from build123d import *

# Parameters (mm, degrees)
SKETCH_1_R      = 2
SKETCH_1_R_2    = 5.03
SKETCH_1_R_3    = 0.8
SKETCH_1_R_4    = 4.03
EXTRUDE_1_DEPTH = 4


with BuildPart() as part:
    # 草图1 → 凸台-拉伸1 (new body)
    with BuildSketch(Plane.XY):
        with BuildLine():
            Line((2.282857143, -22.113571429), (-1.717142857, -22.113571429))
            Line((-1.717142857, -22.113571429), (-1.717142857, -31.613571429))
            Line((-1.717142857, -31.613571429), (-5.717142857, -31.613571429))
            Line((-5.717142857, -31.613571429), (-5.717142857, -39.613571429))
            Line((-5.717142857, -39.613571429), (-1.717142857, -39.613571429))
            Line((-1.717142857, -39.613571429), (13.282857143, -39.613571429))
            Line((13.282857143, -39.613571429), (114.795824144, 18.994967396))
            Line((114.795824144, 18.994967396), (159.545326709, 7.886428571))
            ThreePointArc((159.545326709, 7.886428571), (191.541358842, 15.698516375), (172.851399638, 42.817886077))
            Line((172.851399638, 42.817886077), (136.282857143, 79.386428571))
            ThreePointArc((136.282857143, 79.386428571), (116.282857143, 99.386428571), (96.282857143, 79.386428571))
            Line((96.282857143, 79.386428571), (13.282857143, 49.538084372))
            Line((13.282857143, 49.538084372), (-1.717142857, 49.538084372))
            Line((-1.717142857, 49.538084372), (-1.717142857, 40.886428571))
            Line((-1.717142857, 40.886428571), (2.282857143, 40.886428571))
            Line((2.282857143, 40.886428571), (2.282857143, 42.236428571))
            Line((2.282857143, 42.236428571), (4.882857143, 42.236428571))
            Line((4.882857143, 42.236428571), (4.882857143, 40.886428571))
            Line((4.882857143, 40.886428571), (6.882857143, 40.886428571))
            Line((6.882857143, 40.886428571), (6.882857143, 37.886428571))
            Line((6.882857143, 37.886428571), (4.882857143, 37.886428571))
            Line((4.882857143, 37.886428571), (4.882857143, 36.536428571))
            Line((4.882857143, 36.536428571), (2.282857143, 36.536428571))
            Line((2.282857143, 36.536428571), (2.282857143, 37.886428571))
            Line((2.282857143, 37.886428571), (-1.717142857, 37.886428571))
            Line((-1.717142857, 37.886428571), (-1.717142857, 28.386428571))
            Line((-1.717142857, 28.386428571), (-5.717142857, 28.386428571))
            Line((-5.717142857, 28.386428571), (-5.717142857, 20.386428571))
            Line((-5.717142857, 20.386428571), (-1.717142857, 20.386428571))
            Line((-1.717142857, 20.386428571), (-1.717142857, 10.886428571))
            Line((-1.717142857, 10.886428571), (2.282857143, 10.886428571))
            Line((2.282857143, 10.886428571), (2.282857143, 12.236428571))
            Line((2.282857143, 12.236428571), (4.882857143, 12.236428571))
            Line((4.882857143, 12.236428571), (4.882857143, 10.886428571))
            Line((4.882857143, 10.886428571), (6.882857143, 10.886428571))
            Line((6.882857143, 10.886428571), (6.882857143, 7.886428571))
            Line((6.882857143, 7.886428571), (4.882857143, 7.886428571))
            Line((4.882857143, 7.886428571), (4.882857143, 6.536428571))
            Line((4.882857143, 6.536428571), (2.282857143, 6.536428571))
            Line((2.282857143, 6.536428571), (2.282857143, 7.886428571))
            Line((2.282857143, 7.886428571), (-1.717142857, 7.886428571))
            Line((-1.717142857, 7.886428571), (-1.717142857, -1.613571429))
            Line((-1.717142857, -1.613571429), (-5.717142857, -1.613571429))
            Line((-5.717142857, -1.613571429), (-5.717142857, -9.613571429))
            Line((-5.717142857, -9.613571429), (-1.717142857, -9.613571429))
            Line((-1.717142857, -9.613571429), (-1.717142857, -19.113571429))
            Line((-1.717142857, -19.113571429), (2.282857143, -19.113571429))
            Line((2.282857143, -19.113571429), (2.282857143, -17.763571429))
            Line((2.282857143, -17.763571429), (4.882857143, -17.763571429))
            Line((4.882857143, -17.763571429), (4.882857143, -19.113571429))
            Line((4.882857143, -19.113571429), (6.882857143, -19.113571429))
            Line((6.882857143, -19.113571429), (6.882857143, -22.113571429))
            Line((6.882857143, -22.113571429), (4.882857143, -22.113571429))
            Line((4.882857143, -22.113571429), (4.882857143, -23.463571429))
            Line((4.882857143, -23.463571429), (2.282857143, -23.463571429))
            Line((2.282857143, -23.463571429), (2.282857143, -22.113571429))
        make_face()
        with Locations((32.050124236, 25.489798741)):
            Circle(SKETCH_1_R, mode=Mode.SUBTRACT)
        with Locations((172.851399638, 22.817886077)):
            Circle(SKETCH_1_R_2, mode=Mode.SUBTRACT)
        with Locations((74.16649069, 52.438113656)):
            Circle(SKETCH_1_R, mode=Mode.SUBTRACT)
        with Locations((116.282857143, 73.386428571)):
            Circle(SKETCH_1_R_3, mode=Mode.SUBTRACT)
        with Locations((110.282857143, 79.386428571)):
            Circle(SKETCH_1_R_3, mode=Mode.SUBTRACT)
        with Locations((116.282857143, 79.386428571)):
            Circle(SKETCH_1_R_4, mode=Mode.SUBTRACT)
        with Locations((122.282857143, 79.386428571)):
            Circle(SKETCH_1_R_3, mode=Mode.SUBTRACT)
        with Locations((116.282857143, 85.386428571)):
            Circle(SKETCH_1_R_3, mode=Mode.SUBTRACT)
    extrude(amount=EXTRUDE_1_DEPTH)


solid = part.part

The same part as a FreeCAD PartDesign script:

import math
import FreeCAD as App
import Part
import Sketcher
Q = App.Units.Quantity

doc = App.newDocument("Part")
body = doc.addObject("PartDesign::Body", "Body")

sketch1 = body.newObject("Sketcher::SketchObject", "Sketch")
sketch1.AttachmentSupport = (doc.getObject("XY_Plane"), [""])
sketch1.MapMode = "FlatFace"
sketch1.addGeometry(Part.LineSegment(App.Vector(2.282857, -22.113571, 0), App.Vector(-1.717143, -22.113571, 0)), False)
sketch1.addGeometry(Part.LineSegment(App.Vector(-1.717143, -22.113571, 0), App.Vector(-1.717143, -31.613571, 0)), False)
sketch1.addGeometry(Part.LineSegment(App.Vector(-1.717143, -31.613571, 0), App.Vector(-5.717143, -31.613571, 0)), False)
sketch1.addGeometry(Part.LineSegment(App.Vector(-5.717143, -31.613571, 0), App.Vector(-5.717143, -39.613571, 0)), False)
sketch1.addGeometry(Part.LineSegment(App.Vector(-5.717143, -39.613571, 0), App.Vector(13.282857, -39.613571, 0)), False)
sketch1.addGeometry(Part.LineSegment(App.Vector(13.282857, -39.613571, 0), App.Vector(114.795824, 18.994967, 0)), False)
sketch1.addGeometry(Part.LineSegment(App.Vector(114.795824, 18.994967, 0), App.Vector(159.545327, 7.886429, 0)), False)
sketch1.addGeometry(Part.ArcOfCircle(Part.Circle(App.Vector(172.8514, 22.817886, 0), App.Vector(0, 0, 1), 20), math.radians(-131.705625), math.radians(90)), False)
sketch1.addGeometry(Part.LineSegment(App.Vector(172.8514, 42.817886, 0), App.Vector(136.282857, 79.386429, 0)), False)
sketch1.addGeometry(Part.ArcOfCircle(Part.Circle(App.Vector(116.282857, 79.386429, 0), App.Vector(0, 0, 1), 20), math.radians(0), math.radians(180)), False)
sketch1.addGeometry(Part.LineSegment(App.Vector(96.282857, 79.386429, 0), App.Vector(13.282857, 49.538084, 0)), False)
sketch1.addGeometry(Part.LineSegment(App.Vector(13.282857, 49.538084, 0), App.Vector(-1.717143, 49.538084, 0)), False)
sketch1.addGeometry(Part.LineSegment(App.Vector(-1.717143, 49.538084, 0), App.Vector(-1.717143, 40.886429, 0)), False)
sketch1.addGeometry(Part.LineSegment(App.Vector(-1.717143, 40.886429, 0), App.Vector(2.282857, 40.886429, 0)), False)
sketch1.addGeometry(Part.LineSegment(App.Vector(2.282857, 40.886429, 0), App.Vector(2.282857, 42.236429, 0)), False)
sketch1.addGeometry(Part.LineSegment(App.Vector(2.282857, 42.236429, 0), App.Vector(4.882857, 42.236429, 0)), False)
sketch1.addGeometry(Part.LineSegment(App.Vector(4.882857, 42.236429, 0), App.Vector(4.882857, 40.886429, 0)), False)
sketch1.addGeometry(Part.LineSegment(App.Vector(4.882857, 40.886429, 0), App.Vector(6.882857, 40.886429, 0)), False)
sketch1.addGeometry(Part.LineSegment(App.Vector(6.882857, 40.886429, 0), App.Vector(6.882857, 37.886429, 0)), False)
sketch1.addGeometry(Part.LineSegment(App.Vector(6.882857, 37.886429, 0), App.Vector(4.882857, 37.886429, 0)), False)
sketch1.addGeometry(Part.LineSegment(App.Vector(4.882857, 37.886429, 0), App.Vector(4.882857, 36.536429, 0)), False)
sketch1.addGeometry(Part.LineSegment(App.Vector(4.882857, 36.536429, 0), App.Vector(2.282857, 36.536429, 0)), False)
sketch1.addGeometry(Part.LineSegment(App.Vector(2.282857, 36.536429, 0), App.Vector(2.282857, 37.886429, 0)), False)
sketch1.addGeometry(Part.LineSegment(App.Vector(2.282857, 37.886429, 0), App.Vector(-1.717143, 37.886429, 0)), False)
sketch1.addGeometry(Part.LineSegment(App.Vector(-1.717143, 37.886429, 0), App.Vector(-1.717143, 28.386429, 0)), False)
sketch1.addGeometry(Part.LineSegment(App.Vector(-1.717143, 28.386429, 0), App.Vector(-5.717143, 28.386429, 0)), False)
sketch1.addGeometry(Part.LineSegment(App.Vector(-5.717143, 28.386429, 0), App.Vector(-5.717143, 20.386429, 0)), False)
sketch1.addGeometry(Part.LineSegment(App.Vector(-5.717143, 20.386429, 0), App.Vector(-1.717143, 20.386429, 0)), False)
sketch1.addGeometry(Part.LineSegment(App.Vector(-1.717143, 20.386429, 0), App.Vector(-1.717143, 10.886429, 0)), False)
sketch1.addGeometry(Part.LineSegment(App.Vector(-1.717143, 10.886429, 0), App.Vector(2.282857, 10.886429, 0)), False)
sketch1.addGeometry(Part.LineSegment(App.Vector(2.282857, 10.886429, 0), App.Vector(2.282857, 12.236429, 0)), False)
sketch1.addGeometry(Part.LineSegment(App.Vector(2.282857, 12.236429, 0), App.Vector(4.882857, 12.236429, 0)), False)
sketch1.addGeometry(Part.LineSegment(App.Vector(4.882857, 12.236429, 0), App.Vector(4.882857, 10.886429, 0)), False)
sketch1.addGeometry(Part.LineSegment(App.Vector(4.882857, 10.886429, 0), App.Vector(6.882857, 10.886429, 0)), False)
sketch1.addGeometry(Part.LineSegment(App.Vector(6.882857, 10.886429, 0), App.Vector(6.882857, 7.886429, 0)), False)
sketch1.addGeometry(Part.LineSegment(App.Vector(6.882857, 7.886429, 0), App.Vector(4.882857, 7.886429, 0)), False)
sketch1.addGeometry(Part.LineSegment(App.Vector(4.882857, 7.886429, 0), App.Vector(4.882857, 6.536429, 0)), False)
sketch1.addGeometry(Part.LineSegment(App.Vector(4.882857, 6.536429, 0), App.Vector(2.282857, 6.536429, 0)), False)
sketch1.addGeometry(Part.LineSegment(App.Vector(2.282857, 6.536429, 0), App.Vector(2.282857, 7.886429, 0)), False)
sketch1.addGeometry(Part.LineSegment(App.Vector(2.282857, 7.886429, 0), App.Vector(-1.717143, 7.886429, 0)), False)
sketch1.addGeometry(Part.LineSegment(App.Vector(-1.717143, 7.886429, 0), App.Vector(-1.717143, -1.613571, 0)), False)
sketch1.addGeometry(Part.LineSegment(App.Vector(-1.717143, -1.613571, 0), App.Vector(-5.717143, -1.613571, 0)), False)
sketch1.addGeometry(Part.LineSegment(App.Vector(-5.717143, -1.613571, 0), App.Vector(-5.717143, -9.613571, 0)), False)
sketch1.addGeometry(Part.LineSegment(App.Vector(-5.717143, -9.613571, 0), App.Vector(-1.717143, -9.613571, 0)), False)
sketch1.addGeometry(Part.LineSegment(App.Vector(-1.717143, -9.613571, 0), App.Vector(-1.717143, -19.113571, 0)), False)
sketch1.addGeometry(Part.LineSegment(App.Vector(-1.717143, -19.113571, 0), App.Vector(2.282857, -19.113571, 0)), False)
sketch1.addGeometry(Part.LineSegment(App.Vector(2.282857, -19.113571, 0), App.Vector(2.282857, -17.763571, 0)), False)
sketch1.addGeometry(Part.LineSegment(App.Vector(2.282857, -17.763571, 0), App.Vector(4.882857, -17.763571, 0)), False)
sketch1.addGeometry(Part.LineSegment(App.Vector(4.882857, -17.763571, 0), App.Vector(4.882857, -19.113571, 0)), False)
sketch1.addGeometry(Part.LineSegment(App.Vector(4.882857, -19.113571, 0), App.Vector(6.882857, -19.113571, 0)), False)
sketch1.addGeometry(Part.LineSegment(App.Vector(6.882857, -19.113571, 0), App.Vector(6.882857, -22.113571, 0)), False)
sketch1.addGeometry(Part.LineSegment(App.Vector(6.882857, -22.113571, 0), App.Vector(4.882857, -22.113571, 0)), False)
sketch1.addGeometry(Part.LineSegment(App.Vector(4.882857, -22.113571, 0), App.Vector(4.882857, -23.463571, 0)), False)
sketch1.addGeometry(Part.LineSegment(App.Vector(4.882857, -23.463571, 0), App.Vector(2.282857, -23.463571, 0)), False)
sketch1.addGeometry(Part.LineSegment(App.Vector(2.282857, -23.463571, 0), App.Vector(2.282857, -22.113571, 0)), False)
sketch1.addGeometry(Part.Circle(App.Vector(32.050124, 25.489799, 0), App.Vector(0, 0, 1), 2), False)
sketch1.addGeometry(Part.Circle(App.Vector(172.8514, 22.817886, 0), App.Vector(0, 0, 1), 5.03), False)
sketch1.addGeometry(Part.Circle(App.Vector(74.166491, 52.438114, 0), App.Vector(0, 0, 1), 2), False)
sketch1.addGeometry(Part.Circle(App.Vector(116.282857, 73.386429, 0), App.Vector(0, 0, 1), 0.8), False)
sketch1.addGeometry(Part.Circle(App.Vector(110.282857, 79.386429, 0), App.Vector(0, 0, 1), 0.8), False)
sketch1.addGeometry(Part.Circle(App.Vector(116.282857, 79.386429, 0), App.Vector(0, 0, 1), 4.03), False)
sketch1.addGeometry(Part.Circle(App.Vector(122.282857, 79.386429, 0), App.Vector(0, 0, 1), 0.8), False)
sketch1.addGeometry(Part.Circle(App.Vector(116.282857, 85.386429, 0), App.Vector(0, 0, 1), 0.8), False)
sketch1.addConstraint(Sketcher.Constraint("Coincident", 0, 2, 1, 1))
sketch1.addConstraint(Sketcher.Constraint("Coincident", 1, 2, 2, 1))
sketch1.addConstraint(Sketcher.Constraint("Coincident", 2, 2, 3, 1))
sketch1.addConstraint(Sketcher.Constraint("Coincident", 3, 2, 4, 1))
sketch1.addConstraint(Sketcher.Constraint("Coincident", 4, 2, 5, 1))
sketch1.addConstraint(Sketcher.Constraint("Coincident", 5, 2, 6, 1))
sketch1.addConstraint(Sketcher.Constraint("Coincident", 6, 2, 7, 1))
sketch1.addConstraint(Sketcher.Constraint("Coincident", 7, 2, 8, 1))
sketch1.addConstraint(Sketcher.Constraint("Coincident", 8, 2, 9, 1))
sketch1.addConstraint(Sketcher.Constraint("Coincident", 9, 2, 10, 1))
sketch1.addConstraint(Sketcher.Constraint("Coincident", 10, 2, 11, 1))
sketch1.addConstraint(Sketcher.Constraint("Coincident", 11, 2, 12, 1))
sketch1.addConstraint(Sketcher.Constraint("Coincident", 12, 2, 13, 1))
sketch1.addConstraint(Sketcher.Constraint("Coincident", 13, 2, 14, 1))
sketch1.addConstraint(Sketcher.Constraint("Coincident", 14, 2, 15, 1))
sketch1.addConstraint(Sketcher.Constraint("Coincident", 15, 2, 16, 1))
sketch1.addConstraint(Sketcher.Constraint("Coincident", 16, 2, 17, 1))
sketch1.addConstraint(Sketcher.Constraint("Coincident", 17, 2, 18, 1))
sketch1.addConstraint(Sketcher.Constraint("Coincident", 18, 2, 19, 1))
sketch1.addConstraint(Sketcher.Constraint("Coincident", 19, 2, 20, 1))
sketch1.addConstraint(Sketcher.Constraint("Coincident", 20, 2, 21, 1))
sketch1.addConstraint(Sketcher.Constraint("Coincident", 21, 2, 22, 1))
sketch1.addConstraint(Sketcher.Constraint("Coincident", 22, 2, 23, 1))
sketch1.addConstraint(Sketcher.Constraint("Coincident", 23, 2, 24, 1))
sketch1.addConstraint(Sketcher.Constraint("Coincident", 24, 2, 25, 1))
sketch1.addConstraint(Sketcher.Constraint("Coincident", 25, 2, 26, 1))
sketch1.addConstraint(Sketcher.Constraint("Coincident", 26, 2, 27, 1))
sketch1.addConstraint(Sketcher.Constraint("Coincident", 27, 2, 28, 1))
sketch1.addConstraint(Sketcher.Constraint("Coincident", 28, 2, 29, 1))
sketch1.addConstraint(Sketcher.Constraint("Coincident", 29, 2, 30, 1))
sketch1.addConstraint(Sketcher.Constraint("Coincident", 30, 2, 31, 1))
sketch1.addConstraint(Sketcher.Constraint("Coincident", 31, 2, 32, 1))
sketch1.addConstraint(Sketcher.Constraint("Coincident", 32, 2, 33, 1))
sketch1.addConstraint(Sketcher.Constraint("Coincident", 33, 2, 34, 1))
sketch1.addConstraint(Sketcher.Constraint("Coincident", 34, 2, 35, 1))
sketch1.addConstraint(Sketcher.Constraint("Coincident", 35, 2, 36, 1))
sketch1.addConstraint(Sketcher.Constraint("Coincident", 36, 2, 37, 1))
sketch1.addConstraint(Sketcher.Constraint("Coincident", 37, 2, 38, 1))
sketch1.addConstraint(Sketcher.Constraint("Coincident", 38, 2, 39, 1))
sketch1.addConstraint(Sketcher.Constraint("Coincident", 39, 2, 40, 1))
sketch1.addConstraint(Sketcher.Constraint("Coincident", 40, 2, 41, 1))
sketch1.addConstraint(Sketcher.Constraint("Coincident", 41, 2, 42, 1))
sketch1.addConstraint(Sketcher.Constraint("Coincident", 42, 2, 43, 1))
sketch1.addConstraint(Sketcher.Constraint("Coincident", 43, 2, 44, 1))
sketch1.addConstraint(Sketcher.Constraint("Coincident", 44, 2, 45, 1))
sketch1.addConstraint(Sketcher.Constraint("Coincident", 45, 2, 46, 1))
sketch1.addConstraint(Sketcher.Constraint("Coincident", 46, 2, 47, 1))
sketch1.addConstraint(Sketcher.Constraint("Coincident", 47, 2, 48, 1))
sketch1.addConstraint(Sketcher.Constraint("Coincident", 48, 2, 49, 1))
sketch1.addConstraint(Sketcher.Constraint("Coincident", 49, 2, 50, 1))
sketch1.addConstraint(Sketcher.Constraint("Coincident", 50, 2, 51, 1))
sketch1.addConstraint(Sketcher.Constraint("Coincident", 51, 2, 52, 1))
sketch1.addConstraint(Sketcher.Constraint("Coincident", 52, 2, 53, 1))
sketch1.addConstraint(Sketcher.Constraint("Coincident", 53, 2, 54, 1))
sketch1.addConstraint(Sketcher.Constraint("Coincident", 54, 2, 0, 1))
sketch1.addConstraint(Sketcher.Constraint("Horizontal", 0))
sketch1.addConstraint(Sketcher.Constraint("Vertical", 1))
sketch1.addConstraint(Sketcher.Constraint("Horizontal", 2))
sketch1.addConstraint(Sketcher.Constraint("Vertical", 3))
sketch1.addConstraint(Sketcher.Constraint("Horizontal", 4))
sketch1.addConstraint(Sketcher.Constraint("Horizontal", 11))
sketch1.addConstraint(Sketcher.Constraint("Vertical", 12))
sketch1.addConstraint(Sketcher.Constraint("Horizontal", 13))
sketch1.addConstraint(Sketcher.Constraint("Vertical", 14))
sketch1.addConstraint(Sketcher.Constraint("Horizontal", 15))
sketch1.addConstraint(Sketcher.Constraint("Vertical", 16))
sketch1.addConstraint(Sketcher.Constraint("Horizontal", 17))
sketch1.addConstraint(Sketcher.Constraint("Vertical", 18))
sketch1.addConstraint(Sketcher.Constraint("Horizontal", 19))
sketch1.addConstraint(Sketcher.Constraint("Vertical", 20))
sketch1.addConstraint(Sketcher.Constraint("Horizontal", 21))
sketch1.addConstraint(Sketcher.Constraint("Vertical", 22))
sketch1.addConstraint(Sketcher.Constraint("Horizontal", 23))
sketch1.addConstraint(Sketcher.Constraint("Vertical", 24))
sketch1.addConstraint(Sketcher.Constraint("Horizontal", 25))
sketch1.addConstraint(Sketcher.Constraint("Vertical", 26))
sketch1.addConstraint(Sketcher.Constraint("Horizontal", 27))
sketch1.addConstraint(Sketcher.Constraint("Vertical", 28))
sketch1.addConstraint(Sketcher.Constraint("Horizontal", 29))
sketch1.addConstraint(Sketcher.Constraint("Vertical", 30))
sketch1.addConstraint(Sketcher.Constraint("Horizontal", 31))
sketch1.addConstraint(Sketcher.Constraint("Vertical", 32))
sketch1.addConstraint(Sketcher.Constraint("Horizontal", 33))
sketch1.addConstraint(Sketcher.Constraint("Vertical", 34))
sketch1.addConstraint(Sketcher.Constraint("Horizontal", 35))
sketch1.addConstraint(Sketcher.Constraint("Vertical", 36))
sketch1.addConstraint(Sketcher.Constraint("Horizontal", 37))
sketch1.addConstraint(Sketcher.Constraint("Vertical", 38))
sketch1.addConstraint(Sketcher.Constraint("Horizontal", 39))
sketch1.addConstraint(Sketcher.Constraint("Vertical", 40))
sketch1.addConstraint(Sketcher.Constraint("Horizontal", 41))
sketch1.addConstraint(Sketcher.Constraint("Vertical", 42))
sketch1.addConstraint(Sketcher.Constraint("Horizontal", 43))
sketch1.addConstraint(Sketcher.Constraint("Vertical", 44))
sketch1.addConstraint(Sketcher.Constraint("Horizontal", 45))
sketch1.addConstraint(Sketcher.Constraint("Vertical", 46))
sketch1.addConstraint(Sketcher.Constraint("Horizontal", 47))
sketch1.addConstraint(Sketcher.Constraint("Vertical", 48))
sketch1.addConstraint(Sketcher.Constraint("Horizontal", 49))
sketch1.addConstraint(Sketcher.Constraint("Vertical", 50))
sketch1.addConstraint(Sketcher.Constraint("Horizontal", 51))
sketch1.addConstraint(Sketcher.Constraint("Vertical", 52))
sketch1.addConstraint(Sketcher.Constraint("Horizontal", 53))
sketch1.addConstraint(Sketcher.Constraint("Vertical", 54))
sketch1.addConstraint(Sketcher.Constraint("Coincident", 56, 3, 7, 3))
sketch1.addConstraint(Sketcher.Constraint("Coincident", 60, 3, 9, 3))
sketch1.addConstraint(Sketcher.Constraint("Equal", 7, 9))
sketch1.addConstraint(Sketcher.Constraint("Equal", 55, 57))
sketch1.addConstraint(Sketcher.Constraint("Equal", 58, 59))
sketch1.addConstraint(Sketcher.Constraint("Equal", 59, 61))
sketch1.addConstraint(Sketcher.Constraint("Equal", 61, 62))
sketch1.addConstraint(Sketcher.Constraint("Horizontal", 9, 3, 59, 3))
sketch1.addConstraint(Sketcher.Constraint("Horizontal", 60, 3, 61, 3))
sketch1.addConstraint(Sketcher.Constraint("Horizontal", 61, 3, 8, 2))
sketch1.addConstraint(Sketcher.Constraint("Horizontal", 8, 2, 9, 2))
sketch1.addConstraint(Sketcher.Constraint("Horizontal", 13, 2, 16, 2))
sketch1.addConstraint(Sketcher.Constraint("Horizontal", 19, 2, 22, 2))
sketch1.addConstraint(Sketcher.Constraint("Horizontal", 29, 2, 32, 2))
sketch1.addConstraint(Sketcher.Constraint("Horizontal", 6, 2, 34, 2))
sketch1.addConstraint(Sketcher.Constraint("Horizontal", 35, 2, 38, 2))
sketch1.addConstraint(Sketcher.Constraint("Horizontal", 45, 2, 48, 2))
sketch1.addConstraint(Sketcher.Constraint("Horizontal", 0, 2, 50, 2))
sketch1.addConstraint(Sketcher.Constraint("Vertical", 9, 3, 58, 3))
sketch1.addConstraint(Sketcher.Constraint("Vertical", 60, 3, 62, 3))
sketch1.addConstraint(Sketcher.Constraint("Vertical", 56, 3, 7, 2))
sketch1.addConstraint(Sketcher.Constraint("Vertical", 4, 2, 10, 2))
sketch1.addConstraint(Sketcher.Constraint("Vertical", 1, 2, 11, 2))
sketch1.addConstraint(Sketcher.Constraint("Vertical", 16, 2, 19, 2))
sketch1.addConstraint(Sketcher.Constraint("Vertical", 14, 2, 21, 2))
sketch1.addConstraint(Sketcher.Constraint("Vertical", 12, 2, 23, 2))
sketch1.addConstraint(Sketcher.Constraint("Vertical", 3, 2, 25, 2))
sketch1.addConstraint(Sketcher.Constraint("Vertical", 24, 2, 27, 2))
sketch1.addConstraint(Sketcher.Constraint("Vertical", 22, 2, 29, 2))
sketch1.addConstraint(Sketcher.Constraint("Vertical", 20, 2, 31, 2))
sketch1.addConstraint(Sketcher.Constraint("Vertical", 18, 2, 33, 2))
sketch1.addConstraint(Sketcher.Constraint("Vertical", 32, 2, 35, 2))
sketch1.addConstraint(Sketcher.Constraint("Vertical", 30, 2, 37, 2))
sketch1.addConstraint(Sketcher.Constraint("Vertical", 28, 2, 39, 2))
sketch1.addConstraint(Sketcher.Constraint("Vertical", 26, 2, 41, 2))
sketch1.addConstraint(Sketcher.Constraint("Vertical", 40, 2, 43, 2))
sketch1.addConstraint(Sketcher.Constraint("Vertical", 38, 2, 45, 2))
sketch1.addConstraint(Sketcher.Constraint("Vertical", 36, 2, 47, 2))
sketch1.addConstraint(Sketcher.Constraint("Vertical", 34, 2, 49, 2))
sketch1.addConstraint(Sketcher.Constraint("Vertical", 48, 2, 51, 2))
sketch1.addConstraint(Sketcher.Constraint("Vertical", 46, 2, 53, 2))
sketch1.addConstraint(Sketcher.Constraint("Equal", 0, 2))
sketch1.addConstraint(Sketcher.Constraint("Equal", 16, 20))
sketch1.addConstraint(Sketcher.Constraint("Equal", 1, 24))
sketch1.addConstraint(Sketcher.Constraint("Equal", 3, 26))
sketch1.addConstraint(Sketcher.Constraint("Equal", 24, 28))
sketch1.addConstraint(Sketcher.Constraint("Equal", 22, 30))
sketch1.addConstraint(Sketcher.Constraint("Equal", 18, 34))
sketch1.addConstraint(Sketcher.Constraint("Equal", 32, 36))
sketch1.addConstraint(Sketcher.Constraint("Equal", 28, 40))
sketch1.addConstraint(Sketcher.Constraint("Equal", 26, 42))
sketch1.addConstraint(Sketcher.Constraint("Equal", 40, 44))
sketch1.addConstraint(Sketcher.Constraint("Equal", 38, 46))
sketch1.addConstraint(Sketcher.Constraint("Equal", 34, 50))
sketch1.addConstraint(Sketcher.Constraint("Equal", 48, 52))
sketch1.addConstraint(Sketcher.Constraint("Diameter", 55, 4.0))
sketch1.addConstraint(Sketcher.Constraint("Radius", 7, 20.0))
sketch1.addConstraint(Sketcher.Constraint("Diameter", 58, 1.6))
sketch1.addConstraint(Sketcher.Constraint("Diameter", 56, 10.06))
sketch1.addConstraint(Sketcher.Constraint("Diameter", 60, 8.06))
sketch1.addConstraint(Sketcher.Constraint("DistanceX", 0, 2, 0, 1, 4.0))
sketch1.addConstraint(Sketcher.Constraint("DistanceX", 4, 1, 4, 2, 19.0))
sketch1.addConstraint(Sketcher.Constraint("DistanceX", 17, 1, 17, 2, 2.0))
sketch1.addConstraint(Sketcher.Constraint("DistanceY", 3, 2, 3, 1, 8.0))
sketch1.addConstraint(Sketcher.Constraint("DistanceY", 18, 2, 18, 1, 3.0))
sketch1.addConstraint(Sketcher.Constraint("Angle", 5, Q("30 deg")))
sketch1.addConstraint(Sketcher.Constraint("Angle", 8, Q("135 deg")))
sketch1.addConstraint(Sketcher.Constraint("DistanceX", 15, 1, 15, 2, 2.6))
sketch1.addConstraint(Sketcher.Constraint("DistanceY", 1, 2, 1, 1, 9.5))
sketch1.addConstraint(Sketcher.Constraint("DistanceY", 14, 1, 14, 2, 1.35))
sketch1.addConstraint(Sketcher.Constraint("DistanceX", -1, 1, 7, 3, 172.8514))
sketch1.addConstraint(Sketcher.Constraint("DistanceY", -1, 1, 55, 3, 25.489799))
sketch1.addConstraint(Sketcher.Constraint("Distance", 8, 51.715729))
sketch1.addConstraint(Sketcher.Constraint("DistanceY", 12, 2, 12, 1, 8.651656))
sketch1.addConstraint(Sketcher.Constraint("DistanceY", -1, 1, 9, 3, 79.386429))
sketch1.addConstraint(Sketcher.Constraint("DistanceX", -1, 1, 57, 3, 74.166491))
sketch1.addConstraint(Sketcher.Constraint("DistanceY", -1, 1, 58, 3, 73.386429))
sketch1.addConstraint(Sketcher.Constraint("DistanceY", -1, 1, 62, 3, 85.386429))
sketch1.addConstraint(Sketcher.Constraint("DistanceY", 0, 2, -1, 1, 22.113571))
sketch1.addConstraint(Sketcher.Constraint("Distance", 5, 117.217078))
sketch1.addConstraint(Sketcher.Constraint("Distance", 6, 46.107674))
sketch1.addConstraint(Sketcher.Constraint("DistanceX", -1, 1, 55, 3, 32.050124))
sketch1.addConstraint(Sketcher.Constraint("DistanceY", -1, 1, 57, 3, 52.438114))
sketch1.addConstraint(Sketcher.Constraint("DistanceX", -1, 1, 59, 3, 110.282857))
sketch1.addConstraint(Sketcher.Constraint("DistanceX", -1, 1, 61, 3, 122.282857))
pad1 = body.newObject("PartDesign::Pad", "Pad")
pad1.Profile = sketch1
pad1.Length = 4

doc.recompute()
